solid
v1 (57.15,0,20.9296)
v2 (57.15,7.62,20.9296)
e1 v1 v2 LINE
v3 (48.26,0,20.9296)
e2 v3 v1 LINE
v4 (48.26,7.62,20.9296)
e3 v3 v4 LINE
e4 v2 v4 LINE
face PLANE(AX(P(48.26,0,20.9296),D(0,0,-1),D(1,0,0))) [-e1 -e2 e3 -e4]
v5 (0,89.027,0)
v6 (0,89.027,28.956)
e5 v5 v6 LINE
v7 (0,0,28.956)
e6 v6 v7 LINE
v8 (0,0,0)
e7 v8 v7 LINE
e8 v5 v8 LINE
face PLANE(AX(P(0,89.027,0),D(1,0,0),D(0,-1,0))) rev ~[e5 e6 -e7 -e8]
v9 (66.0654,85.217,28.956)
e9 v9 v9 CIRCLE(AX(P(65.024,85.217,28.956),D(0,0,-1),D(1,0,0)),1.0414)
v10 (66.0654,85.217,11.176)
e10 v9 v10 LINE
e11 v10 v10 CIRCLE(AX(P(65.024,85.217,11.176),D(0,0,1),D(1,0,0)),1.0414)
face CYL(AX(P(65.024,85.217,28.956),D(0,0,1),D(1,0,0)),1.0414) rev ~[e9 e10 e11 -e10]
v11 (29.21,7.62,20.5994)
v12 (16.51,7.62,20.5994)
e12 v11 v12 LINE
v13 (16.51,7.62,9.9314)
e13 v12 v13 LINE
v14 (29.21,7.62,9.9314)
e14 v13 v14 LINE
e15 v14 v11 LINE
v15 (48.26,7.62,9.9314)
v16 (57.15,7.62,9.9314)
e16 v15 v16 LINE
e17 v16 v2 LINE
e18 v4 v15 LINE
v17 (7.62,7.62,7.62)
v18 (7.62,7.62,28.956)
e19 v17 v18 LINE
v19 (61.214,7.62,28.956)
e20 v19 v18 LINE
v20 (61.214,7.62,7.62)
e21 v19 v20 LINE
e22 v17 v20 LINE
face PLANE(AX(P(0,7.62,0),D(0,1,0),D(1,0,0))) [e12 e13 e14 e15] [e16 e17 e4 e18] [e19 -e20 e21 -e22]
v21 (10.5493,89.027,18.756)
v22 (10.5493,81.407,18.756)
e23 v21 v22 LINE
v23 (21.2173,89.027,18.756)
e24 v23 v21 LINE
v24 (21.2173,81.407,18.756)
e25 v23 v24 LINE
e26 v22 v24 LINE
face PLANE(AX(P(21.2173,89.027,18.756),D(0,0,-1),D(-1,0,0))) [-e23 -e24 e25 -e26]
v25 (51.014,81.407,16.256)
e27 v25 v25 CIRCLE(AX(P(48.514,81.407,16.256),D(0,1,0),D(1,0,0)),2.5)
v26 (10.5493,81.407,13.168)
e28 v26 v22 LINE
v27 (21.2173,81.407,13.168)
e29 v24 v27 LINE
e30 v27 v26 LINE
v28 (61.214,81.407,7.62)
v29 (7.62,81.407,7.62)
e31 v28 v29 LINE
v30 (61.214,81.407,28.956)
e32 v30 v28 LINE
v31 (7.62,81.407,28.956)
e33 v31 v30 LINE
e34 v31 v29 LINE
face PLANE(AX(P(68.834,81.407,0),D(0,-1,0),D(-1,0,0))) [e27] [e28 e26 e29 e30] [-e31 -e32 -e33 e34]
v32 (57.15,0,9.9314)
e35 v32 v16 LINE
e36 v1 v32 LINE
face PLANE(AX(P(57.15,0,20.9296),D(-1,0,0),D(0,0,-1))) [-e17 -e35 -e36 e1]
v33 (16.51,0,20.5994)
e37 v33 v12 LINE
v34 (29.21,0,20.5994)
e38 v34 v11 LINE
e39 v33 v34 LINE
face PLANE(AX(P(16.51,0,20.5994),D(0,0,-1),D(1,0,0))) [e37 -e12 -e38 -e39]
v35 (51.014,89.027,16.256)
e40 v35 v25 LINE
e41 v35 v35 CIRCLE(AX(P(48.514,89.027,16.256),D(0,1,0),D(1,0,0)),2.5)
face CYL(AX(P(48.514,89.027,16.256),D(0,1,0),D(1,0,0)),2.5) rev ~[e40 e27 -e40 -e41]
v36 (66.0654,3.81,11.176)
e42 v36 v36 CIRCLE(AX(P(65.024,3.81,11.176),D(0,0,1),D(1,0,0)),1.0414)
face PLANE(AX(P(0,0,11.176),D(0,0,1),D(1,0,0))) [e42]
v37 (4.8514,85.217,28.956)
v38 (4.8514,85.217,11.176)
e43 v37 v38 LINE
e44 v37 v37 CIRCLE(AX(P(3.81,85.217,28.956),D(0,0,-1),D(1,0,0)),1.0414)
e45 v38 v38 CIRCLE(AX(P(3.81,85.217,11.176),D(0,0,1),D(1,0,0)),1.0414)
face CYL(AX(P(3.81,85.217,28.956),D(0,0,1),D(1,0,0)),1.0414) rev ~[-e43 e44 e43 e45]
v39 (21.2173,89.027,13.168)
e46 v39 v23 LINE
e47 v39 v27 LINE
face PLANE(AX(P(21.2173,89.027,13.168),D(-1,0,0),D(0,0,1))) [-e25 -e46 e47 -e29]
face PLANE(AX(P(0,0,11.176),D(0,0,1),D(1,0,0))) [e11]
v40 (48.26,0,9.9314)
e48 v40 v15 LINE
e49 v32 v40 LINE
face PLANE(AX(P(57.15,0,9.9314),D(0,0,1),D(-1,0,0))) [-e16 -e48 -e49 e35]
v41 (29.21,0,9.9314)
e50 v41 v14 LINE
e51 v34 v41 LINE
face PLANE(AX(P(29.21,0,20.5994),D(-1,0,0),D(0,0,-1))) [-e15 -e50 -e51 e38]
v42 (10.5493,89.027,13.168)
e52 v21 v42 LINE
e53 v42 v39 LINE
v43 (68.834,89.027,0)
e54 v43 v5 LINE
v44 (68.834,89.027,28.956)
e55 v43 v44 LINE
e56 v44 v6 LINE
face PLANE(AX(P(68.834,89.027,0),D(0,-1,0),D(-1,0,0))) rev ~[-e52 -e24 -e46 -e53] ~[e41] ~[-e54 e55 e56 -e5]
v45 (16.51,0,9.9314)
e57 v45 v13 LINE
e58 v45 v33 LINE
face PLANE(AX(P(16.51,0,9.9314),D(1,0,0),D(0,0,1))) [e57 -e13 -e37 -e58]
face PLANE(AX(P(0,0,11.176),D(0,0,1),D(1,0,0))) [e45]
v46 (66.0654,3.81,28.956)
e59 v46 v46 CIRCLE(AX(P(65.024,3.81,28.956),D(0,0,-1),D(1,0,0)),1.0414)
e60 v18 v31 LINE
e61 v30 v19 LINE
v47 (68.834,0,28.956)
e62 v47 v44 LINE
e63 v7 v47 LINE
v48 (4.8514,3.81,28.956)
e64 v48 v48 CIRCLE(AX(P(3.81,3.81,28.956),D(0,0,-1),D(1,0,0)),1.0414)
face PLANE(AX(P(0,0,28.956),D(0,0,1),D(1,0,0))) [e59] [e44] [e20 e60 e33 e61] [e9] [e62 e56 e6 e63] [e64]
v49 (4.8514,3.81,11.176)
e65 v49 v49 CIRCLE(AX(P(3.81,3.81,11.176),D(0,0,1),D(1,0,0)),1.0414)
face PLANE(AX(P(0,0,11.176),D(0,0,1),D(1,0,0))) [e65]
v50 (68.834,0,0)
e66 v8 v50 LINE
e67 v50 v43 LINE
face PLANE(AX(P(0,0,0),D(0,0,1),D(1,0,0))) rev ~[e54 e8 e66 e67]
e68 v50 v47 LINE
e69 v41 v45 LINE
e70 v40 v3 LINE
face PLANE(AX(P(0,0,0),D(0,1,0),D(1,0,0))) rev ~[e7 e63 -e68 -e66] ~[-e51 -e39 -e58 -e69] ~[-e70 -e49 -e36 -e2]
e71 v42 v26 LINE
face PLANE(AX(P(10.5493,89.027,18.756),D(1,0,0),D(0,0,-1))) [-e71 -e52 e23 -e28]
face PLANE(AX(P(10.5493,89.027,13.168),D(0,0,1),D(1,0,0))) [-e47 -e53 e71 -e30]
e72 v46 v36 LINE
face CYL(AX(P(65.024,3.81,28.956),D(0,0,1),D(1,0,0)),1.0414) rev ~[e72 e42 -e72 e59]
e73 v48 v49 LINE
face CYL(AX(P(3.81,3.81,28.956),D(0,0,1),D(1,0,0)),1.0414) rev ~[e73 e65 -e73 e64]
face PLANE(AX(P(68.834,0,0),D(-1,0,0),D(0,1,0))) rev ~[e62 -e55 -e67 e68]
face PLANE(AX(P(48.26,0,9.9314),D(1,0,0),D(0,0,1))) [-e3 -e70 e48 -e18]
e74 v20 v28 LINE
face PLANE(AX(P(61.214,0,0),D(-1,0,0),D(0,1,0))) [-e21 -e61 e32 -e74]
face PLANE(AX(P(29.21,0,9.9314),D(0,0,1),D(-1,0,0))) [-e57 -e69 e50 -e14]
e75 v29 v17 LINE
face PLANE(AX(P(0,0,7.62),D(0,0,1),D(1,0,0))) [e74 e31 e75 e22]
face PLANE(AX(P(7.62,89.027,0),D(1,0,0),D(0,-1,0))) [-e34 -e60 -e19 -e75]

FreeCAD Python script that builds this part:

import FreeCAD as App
import Part
import Sketcher

V = App.Vector
Q = App.Units.Quantity


def faces_at(feature, points):
    """Names of the faces that lie closest to the given points."""
    faces = feature.Shape.Faces
    near = lambda p: min(range(len(faces)), key=lambda i: faces[i].distToShape(Part.Vertex(*p))[0])
    return sorted({f"Face{near(p) + 1}" for p in points})

doc = App.newDocument("Part")
params = doc.addObject("Spreadsheet::Sheet", "Params")
for row, (alias, value) in enumerate([
    ("sketch1_width", "2.71 in"),
    ("sketch1_height", "3.505 in"),
    ("pad1_length", "1.14 in"),
    ("thickness_wall", "0.3 in"),
    ("sketch2_width", "0.5 in"),
    ("sketch2_height", "0.42 in"),
    ("pocket1_length", "1.14 in"),
    ("sketch3_width", "0.35 in"),
    ("sketch3_height", "0.433 in"),
    ("pocket2_length", "1.14 in"),
    ("pocket3_length", "1.14 in"),
    ("sketch5_diameter", "0.082 in"),
    ("pocket4_length", "0.7 in"),
    ("sketch6_diameter", "0.082 in"),
    ("pocket5_length", "0.7 in"),
    ("sketch7_diameter", "0.082 in"),
    ("pocket6_length", "0.7 in"),
    ("sketch8_diameter", "0.082 in"),
    ("pocket7_length", "0.7 in"),
    ("sketch9_width", "0.42 in"),
    ("sketch9_height", "0.22 in"),
    ("pocket8_length", "0.7 in"),
], start=1):
    params.set(f"A{row}", alias)
    params.set(f"B{row}", "=" + value)
    params.setAlias(f"B{row}", alias)

body = doc.addObject("PartDesign::Body", "Body")

sketch1 = body.newObject("Sketcher::SketchObject", "Sketch")
sketch1.AttachmentSupport = (doc.getObject("XY_Plane"), [""])
sketch1.MapMode = "FlatFace"
sketch1.addGeometry(Part.LineSegment(V(0, 89, 0), V(0, 0, 0)), False)
sketch1.addGeometry(Part.LineSegment(V(0, 0, 0), V(69, 0, 0)), False)
sketch1.addGeometry(Part.LineSegment(V(69, 0, 0), V(69, 89, 0)), False)
sketch1.addGeometry(Part.LineSegment(V(69, 89, 0), V(0, 89, 0)), False)
sketch1.addConstraint(Sketcher.Constraint("Coincident", 0, 2, 1, 1))
sketch1.addConstraint(Sketcher.Constraint("Coincident", 1, 2, 2, 1))
sketch1.addConstraint(Sketcher.Constraint("Coincident", 2, 2, 3, 1))
sketch1.addConstraint(Sketcher.Constraint("Coincident", 3, 2, 0, 1))
sketch1.addConstraint(Sketcher.Constraint("Vertical", 0))
sketch1.addConstraint(Sketcher.Constraint("Horizontal", 1))
sketch1.addConstraint(Sketcher.Constraint("Vertical", 2))
sketch1.addConstraint(Sketcher.Constraint("Horizontal", 3))
sketch1.addConstraint(Sketcher.Constraint("Coincident", 0, 2, -1, 1))
sketch1.addConstraint(Sketcher.Constraint("DistanceX", 1, 1, 1, 2, Q("2.71 in")))
sketch1.addConstraint(Sketcher.Constraint("DistanceY", 0, 2, 0, 1, Q("3.505 in")))
sketch1.setExpression("Constraints[9]", "Params.sketch1_width")
sketch1.setExpression("Constraints[10]", "Params.sketch1_height")
pad1 = body.newObject("PartDesign::Pad", "Pad")
pad1.Profile = sketch1
pad1.setExpression("Length", "Params.pad1_length")
doc.recompute()

thickness = body.newObject("PartDesign::Thickness", "Thickness")
thickness.Base = (pad1, faces_at(pad1, [(45.889, 29.676, 28.956)]))
thickness.setExpression("Value", "Params.thickness_wall")
thickness.Reversed = True
thickness.Join = "Intersection"

sketch2 = body.newObject("Sketcher::SketchObject", "Sketch001")
sketch2.AttachmentSupport = (doc.getObject("XZ_Plane"), [""])
sketch2.MapMode = "FlatFace"
sketch2.addGeometry(Part.LineSegment(V(29, 21, 0), V(17, 21, 0)), False)
sketch2.addGeometry(Part.LineSegment(V(17, 21, 0), V(17, 10, 0)), False)
sketch2.addGeometry(Part.LineSegment(V(17, 10, 0), V(29, 10, 0)), False)
sketch2.addGeometry(Part.LineSegment(V(29, 10, 0), V(29, 21, 0)), False)
sketch2.addConstraint(Sketcher.Constraint("Coincident", 0, 2, 1, 1))
sketch2.addConstraint(Sketcher.Constraint("Coincident", 1, 2, 2, 1))
sketch2.addConstraint(Sketcher.Constraint("Coincident", 2, 2, 3, 1))
sketch2.addConstraint(Sketcher.Constraint("Coincident", 3, 2, 0, 1))
sketch2.addConstraint(Sketcher.Constraint("Horizontal", 0))
sketch2.addConstraint(Sketcher.Constraint("Vertical", 1))
sketch2.addConstraint(Sketcher.Constraint("Horizontal", 2))
sketch2.addConstraint(Sketcher.Constraint("Vertical", 3))
sketch2.addConstraint(Sketcher.Constraint("DistanceX", 0, 2, 0, 1, Q("0.5 in")))
sketch2.addConstraint(Sketcher.Constraint("DistanceY", 1, 2, 1, 1, Q("0.42 in")))
sketch2.addConstraint(Sketcher.Constraint("DistanceX", -1, 1, 0, 2, Q("0.65 in")))
sketch2.addConstraint(Sketcher.Constraint("DistanceY", -1, 1, 1, 2, Q("0.391 in")))
sketch2.setExpression("Constraints[8]", "Params.sketch2_width")
sketch2.setExpression("Constraints[9]", "Params.sketch2_height")
pocket1 = body.newObject("PartDesign::Pocket", "Pocket")
pocket1.Profile = sketch2
pocket1.setExpression("Length", "Params.pocket1_length")

sketch3 = body.newObject("Sketcher::SketchObject", "Sketch002")
sketch3.AttachmentSupport = (doc.getObject("XZ_Plane"), [""])
sketch3.MapMode = "FlatFace"
sketch3.addGeometry(Part.LineSegment(V(57, 21, 0), V(48, 21, 0)), False)
sketch3.addGeometry(Part.LineSegment(V(48, 21, 0), V(48, 10, 0)), False)
sketch3.addGeometry(Part.LineSegment(V(48, 10, 0), V(57, 10, 0)), False)
sketch3.addGeometry(Part.LineSegment(V(57, 10, 0), V(57, 21, 0)), False)
sketch3.addConstraint(Sketcher.Constraint("Coincident", 0, 2, 1, 1))
sketch3.addConstraint(Sketcher.Constraint("Coincident", 1, 2, 2, 1))
sketch3.addConstraint(Sketcher.Constraint("Coincident", 2, 2, 3, 1))
sketch3.addConstraint(Sketcher.Constraint("Coincident", 3, 2, 0, 1))
sketch3.addConstraint(Sketcher.Constraint("Horizontal", 0))
sketch3.addConstraint(Sketcher.Constraint("Vertical", 1))
sketch3.addConstraint(Sketcher.Constraint("Horizontal", 2))
sketch3.addConstraint(Sketcher.Constraint("Vertical", 3))
sketch3.addConstraint(Sketcher.Constraint("DistanceX", 0, 2, 0, 1, Q("0.35 in")))
sketch3.addConstraint(Sketcher.Constraint("DistanceY", 1, 2, 1, 1, Q("0.433 in")))
sketch3.addConstraint(Sketcher.Constraint("DistanceY", -1, 1, 1, 2, Q("0.391 in")))
sketch3.addConstraint(Sketcher.Constraint("DistanceX", -1, 1, 0, 2, Q("1.9 in")))
sketch3.setExpression("Constraints[8]", "Params.sketch3_width")
sketch3.setExpression("Constraints[9]", "Params.sketch3_height")
pocket2 = body.newObject("PartDesign::Pocket", "Pocket001")
pocket2.Profile = sketch3
pocket2.setExpression("Length", "Params.pocket2_length")

sketch4 = body.newObject("Sketcher::SketchObject", "Sketch003")
sketch4.AttachmentSupport = (doc.getObject("XZ_Plane"), [""])
sketch4.MapMode = "FlatFace"
sketch4.AttachmentOffset = App.Placement(V(0, 0, -3.505 * 25.4), App.Rotation())
sketch4.addGeometry(Part.Circle(V(48.5, 16.3, 0), V(0, 0, 1), 2.5), False)
sketch4.addConstraint(Sketcher.Constraint("Diameter", 0, Q("5 mm")))
sketch4.addConstraint(Sketcher.Constraint("DistanceX", -1, 1, 0, 3, Q("1.91 in")))
sketch4.addConstraint(Sketcher.Constraint("DistanceY", -1, 1, 0, 3, Q("0.64 in")))
pocket3 = body.newObject("PartDesign::Pocket", "Pocket002")
pocket3.Profile = sketch4
pocket3.setExpression("Length", "Params.pocket3_length")
pocket3.Reversed = True

sketch5 = body.newObject("Sketcher::SketchObject", "Sketch004")
sketch5.AttachmentSupport = (doc.getObject("XY_Plane"), [""])
sketch5.MapMode = "FlatFace"
sketch5.AttachmentOffset = App.Placement(V(0, 0, 1.14 * 25.4), App.Rotation())
sketch5.addGeometry(Part.Circle(V(3.8, 85.2, 0), V(0, 0, 1), 1), False)
sketch5.addConstraint(Sketcher.Constraint("Diameter", 0, Q("0.082 in")))
sketch5.addConstraint(Sketcher.Constraint("DistanceX", -1, 1, 0, 3, Q("0.15 in")))
sketch5.addConstraint(Sketcher.Constraint("DistanceY", -1, 1, 0, 3, Q("3.355 in")))
sketch5.setExpression("Constraints[0]", "Params.sketch5_diameter")
pocket4 = body.newObject("PartDesign::Pocket", "Pocket003")
pocket4.Profile = sketch5
pocket4.setExpression("Length", "Params.pocket4_length")

sketch6 = body.newObject("Sketcher::SketchObject", "Sketch005")
sketch6.AttachmentSupport = (doc.getObject("XY_Plane"), [""])
sketch6.MapMode = "FlatFace"
sketch6.AttachmentOffset = App.Placement(V(0, 0, 1.14 * 25.4), App.Rotation())
sketch6.addGeometry(Part.Circle(V(65, 85.2, 0), V(0, 0, 1), 1), False)
sketch6.addConstraint(Sketcher.Constraint("Diameter", 0, Q("0.082 in")))
sketch6.addConstraint(Sketcher.Constraint("DistanceX", -1, 1, 0, 3, Q("2.56 in")))
sketch6.addConstraint(Sketcher.Constraint("DistanceY", -1, 1, 0, 3, Q("3.355 in")))
sketch6.setExpression("Constraints[0]", "Params.sketch6_diameter")
pocket5 = body.newObject("PartDesign::Pocket", "Pocket004")
pocket5.Profile = sketch6
pocket5.setExpression("Length", "Params.pocket5_length")

sketch7 = body.newObject("Sketcher::SketchObject", "Sketch006")
sketch7.AttachmentSupport = (doc.getObject("XY_Plane"), [""])
sketch7.MapMode = "FlatFace"
sketch7.AttachmentOffset = App.Placement(V(0, 0, 1.14 * 25.4), App.Rotation())
sketch7.addGeometry(Part.Circle(V(3.8, 3.8, 0), V(0, 0, 1), 1), False)
sketch7.addConstraint(Sketcher.Constraint("Diameter", 0, Q("0.082 in")))
sketch7.addConstraint(Sketcher.Constraint("DistanceX", -1, 1, 0, 3, Q("0.15 in")))
sketch7.addConstraint(Sketcher.Constraint("DistanceY", -1, 1, 0, 3, Q("0.15 in")))
sketch7.setExpression("Constraints[0]", "Params.sketch7_diameter")
pocket6 = body.newObject("PartDesign::Pocket", "Pocket005")
pocket6.Profile = sketch7
pocket6.setExpression("Length", "Params.pocket6_length")

sketch8 = body.newObject("Sketcher::SketchObject", "Sketch007")
sketch8.AttachmentSupport = (doc.getObject("XY_Plane"), [""])
sketch8.MapMode = "FlatFace"
sketch8.AttachmentOffset = App.Placement(V(0, 0, 1.14 * 25.4), App.Rotation())
sketch8.addGeometry(Part.Circle(V(65, 3.8, 0), V(0, 0, 1), 1), False)
sketch8.addConstraint(Sketcher.Constraint("Diameter", 0, Q("0.082 in")))
sketch8.addConstraint(Sketcher.Constraint("DistanceX", -1, 1, 0, 3, Q("2.56 in")))
sketch8.addConstraint(Sketcher.Constraint("DistanceY", -1, 1, 0, 3, Q("0.15 in")))
sketch8.setExpression("Constraints[0]", "Params.sketch8_diameter")
pocket7 = body.newObject("PartDesign::Pocket", "Pocket006")
pocket7.Profile = sketch8
pocket7.setExpression("Length", "Params.pocket7_length")

sketch9 = body.newObject("Sketcher::SketchObject", "Sketch008")
sketch9.AttachmentSupport = (doc.getObject("XZ_Plane"), [""])
sketch9.MapMode = "FlatFace"
sketch9.AttachmentOffset = App.Placement(V(0, 0, -3.505 * 25.4), App.Rotation())
sketch9.addGeometry(Part.LineSegment(V(11, 19, 0), V(21, 19, 0)), False)
sketch9.addGeometry(Part.LineSegment(V(21, 19, 0), V(21, 13, 0)), False)
sketch9.addGeometry(Part.LineSegment(V(21, 13, 0), V(11, 13, 0)), False)
sketch9.addGeometry(Part.LineSegment(V(11, 13, 0), V(11, 19, 0)), False)
sketch9.addConstraint(Sketcher.Constraint("Coincident", 0, 2, 1, 1))
sketch9.addConstraint(Sketcher.Constraint("Coincident", 1, 2, 2, 1))
sketch9.addConstraint(Sketcher.Constraint("Coincident", 2, 2, 3, 1))
sketch9.addConstraint(Sketcher.Constraint("Coincident", 3, 2, 0, 1))
sketch9.addConstraint(Sketcher.Constraint("Horizontal", 0))
sketch9.addConstraint(Sketcher.Constraint("Vertical", 1))
sketch9.addConstraint(Sketcher.Constraint("Horizontal", 2))
sketch9.addConstraint(Sketcher.Constraint("Vertical", 3))
sketch9.addConstraint(Sketcher.Constraint("DistanceX", 0, 1, 0, 2, Q("0.42 in")))
sketch9.addConstraint(Sketcher.Constraint("DistanceY", 1, 2, 1, 1, Q("0.22 in")))
sketch9.addConstraint(Sketcher.Constraint("DistanceX", -1, 1, 0, 2, Q("21.2173 mm")))
sketch9.addConstraint(Sketcher.Constraint("DistanceY", -1, 1, 0, 2, Q("18.756 mm")))
sketch9.setExpression("Constraints[8]", "Params.sketch9_width")
sketch9.setExpression("Constraints[9]", "Params.sketch9_height")
pocket8 = body.newObject("PartDesign::Pocket", "Pocket007")
pocket8.Profile = sketch9
pocket8.setExpression("Length", "Params.pocket8_length")
pocket8.Reversed = True

doc.recompute()
